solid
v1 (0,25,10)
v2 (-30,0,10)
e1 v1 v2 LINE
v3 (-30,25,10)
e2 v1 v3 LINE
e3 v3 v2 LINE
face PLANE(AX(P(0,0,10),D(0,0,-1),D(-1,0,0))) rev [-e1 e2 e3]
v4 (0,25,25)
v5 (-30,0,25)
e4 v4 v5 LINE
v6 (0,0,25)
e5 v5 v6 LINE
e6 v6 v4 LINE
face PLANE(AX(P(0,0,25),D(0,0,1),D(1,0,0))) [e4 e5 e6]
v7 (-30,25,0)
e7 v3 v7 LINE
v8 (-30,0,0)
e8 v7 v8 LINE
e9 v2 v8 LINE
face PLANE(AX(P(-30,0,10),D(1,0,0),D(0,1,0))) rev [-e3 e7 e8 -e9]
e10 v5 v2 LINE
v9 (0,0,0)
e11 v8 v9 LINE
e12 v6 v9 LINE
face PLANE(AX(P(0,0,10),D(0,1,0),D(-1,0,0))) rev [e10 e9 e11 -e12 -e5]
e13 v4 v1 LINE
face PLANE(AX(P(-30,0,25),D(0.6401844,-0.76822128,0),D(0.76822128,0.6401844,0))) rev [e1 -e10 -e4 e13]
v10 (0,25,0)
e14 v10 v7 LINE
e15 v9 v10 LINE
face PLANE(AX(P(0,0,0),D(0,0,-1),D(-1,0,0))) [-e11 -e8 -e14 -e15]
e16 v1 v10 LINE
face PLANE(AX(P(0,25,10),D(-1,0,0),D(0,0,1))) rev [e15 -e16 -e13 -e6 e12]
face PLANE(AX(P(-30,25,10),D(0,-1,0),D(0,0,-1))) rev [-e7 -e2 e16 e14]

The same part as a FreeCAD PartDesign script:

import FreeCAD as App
import Part
import Sketcher

V = App.Vector
Q = App.Units.Quantity

doc = App.newDocument("Part")
body = doc.addObject("PartDesign::Body", "Body")

# Sketch on XY plane
sketch1 = body.newObject("Sketcher::SketchObject", "Sketch")
sketch1.AttachmentSupport = (doc.getObject("XY_Plane"), [""])
sketch1.MapMode = "FlatFace"
sketch1.addGeometry([
    Part.LineSegment(V(-30, 25, 0), V(-30, 0, 0)),
    Part.LineSegment(V(-30, 0, 0), V(0, 0, 0)),
    Part.LineSegment(V(0, 0, 0), V(0, 25, 0)),
    Part.LineSegment(V(0, 25, 0), V(-30, 25, 0)),
], False)
sketch1.addConstraint([
    Sketcher.Constraint("Coincident", 0, 2, 1, 1),
    Sketcher.Constraint("Coincident", 1, 2, 2, 1),
    Sketcher.Constraint("Coincident", 2, 2, 3, 1),
    Sketcher.Constraint("Coincident", 3, 2, 0, 1),
    Sketcher.Constraint("Vertical", 0),
    Sketcher.Constraint("Horizontal", 1),
    Sketcher.Constraint("Vertical", 2),
    Sketcher.Constraint("Horizontal", 3),
    Sketcher.Constraint("Coincident", 1, 2, -1, 1),
    Sketcher.Constraint("DistanceX", 1, 1, 1, 2, Q("30 mm")),
    Sketcher.Constraint("DistanceY", 0, 2, 0, 1, Q("25 mm")),
])
pad1 = body.newObject("PartDesign::Pad", "Pad")
pad1.Profile = sketch1
pad1.Length = 10

# Sketch on XY plane
sketch2 = body.newObject("Sketcher::SketchObject", "Sketch001")
sketch2.AttachmentSupport = (doc.getObject("XY_Plane"), [""])
sketch2.MapMode = "FlatFace"
sketch2.AttachmentOffset = App.Placement(V(0, 0, 10), App.Rotation())
sketch2.addGeometry([
    Part.LineSegment(V(0, 25, 0), V(-30, 0, 0)),
    Part.LineSegment(V(-30, 0, 0), V(0, 0, 0)),
    Part.LineSegment(V(0, 0, 0), V(0, 25, 0)),
], False)
sketch2.addConstraint([
    Sketcher.Constraint("Coincident", 0, 2, 1, 1),
    Sketcher.Constraint("Coincident", 1, 2, 2, 1),
    Sketcher.Constraint("Coincident", 2, 2, 0, 1),
    Sketcher.Constraint("Horizontal", 1),
    Sketcher.Constraint("Vertical", 2),
    Sketcher.Constraint("Coincident", 1, 2, -1, 1),
    Sketcher.Constraint("DistanceX", 1, 1, 1, 2, Q("30 mm")),
    Sketcher.Constraint("DistanceY", 2, 1, 2, 2, Q("25 mm")),
])
pad2 = body.newObject("PartDesign::Pad", "Pad001")
pad2.Profile = sketch2
pad2.Length = 15

doc.recompute()
